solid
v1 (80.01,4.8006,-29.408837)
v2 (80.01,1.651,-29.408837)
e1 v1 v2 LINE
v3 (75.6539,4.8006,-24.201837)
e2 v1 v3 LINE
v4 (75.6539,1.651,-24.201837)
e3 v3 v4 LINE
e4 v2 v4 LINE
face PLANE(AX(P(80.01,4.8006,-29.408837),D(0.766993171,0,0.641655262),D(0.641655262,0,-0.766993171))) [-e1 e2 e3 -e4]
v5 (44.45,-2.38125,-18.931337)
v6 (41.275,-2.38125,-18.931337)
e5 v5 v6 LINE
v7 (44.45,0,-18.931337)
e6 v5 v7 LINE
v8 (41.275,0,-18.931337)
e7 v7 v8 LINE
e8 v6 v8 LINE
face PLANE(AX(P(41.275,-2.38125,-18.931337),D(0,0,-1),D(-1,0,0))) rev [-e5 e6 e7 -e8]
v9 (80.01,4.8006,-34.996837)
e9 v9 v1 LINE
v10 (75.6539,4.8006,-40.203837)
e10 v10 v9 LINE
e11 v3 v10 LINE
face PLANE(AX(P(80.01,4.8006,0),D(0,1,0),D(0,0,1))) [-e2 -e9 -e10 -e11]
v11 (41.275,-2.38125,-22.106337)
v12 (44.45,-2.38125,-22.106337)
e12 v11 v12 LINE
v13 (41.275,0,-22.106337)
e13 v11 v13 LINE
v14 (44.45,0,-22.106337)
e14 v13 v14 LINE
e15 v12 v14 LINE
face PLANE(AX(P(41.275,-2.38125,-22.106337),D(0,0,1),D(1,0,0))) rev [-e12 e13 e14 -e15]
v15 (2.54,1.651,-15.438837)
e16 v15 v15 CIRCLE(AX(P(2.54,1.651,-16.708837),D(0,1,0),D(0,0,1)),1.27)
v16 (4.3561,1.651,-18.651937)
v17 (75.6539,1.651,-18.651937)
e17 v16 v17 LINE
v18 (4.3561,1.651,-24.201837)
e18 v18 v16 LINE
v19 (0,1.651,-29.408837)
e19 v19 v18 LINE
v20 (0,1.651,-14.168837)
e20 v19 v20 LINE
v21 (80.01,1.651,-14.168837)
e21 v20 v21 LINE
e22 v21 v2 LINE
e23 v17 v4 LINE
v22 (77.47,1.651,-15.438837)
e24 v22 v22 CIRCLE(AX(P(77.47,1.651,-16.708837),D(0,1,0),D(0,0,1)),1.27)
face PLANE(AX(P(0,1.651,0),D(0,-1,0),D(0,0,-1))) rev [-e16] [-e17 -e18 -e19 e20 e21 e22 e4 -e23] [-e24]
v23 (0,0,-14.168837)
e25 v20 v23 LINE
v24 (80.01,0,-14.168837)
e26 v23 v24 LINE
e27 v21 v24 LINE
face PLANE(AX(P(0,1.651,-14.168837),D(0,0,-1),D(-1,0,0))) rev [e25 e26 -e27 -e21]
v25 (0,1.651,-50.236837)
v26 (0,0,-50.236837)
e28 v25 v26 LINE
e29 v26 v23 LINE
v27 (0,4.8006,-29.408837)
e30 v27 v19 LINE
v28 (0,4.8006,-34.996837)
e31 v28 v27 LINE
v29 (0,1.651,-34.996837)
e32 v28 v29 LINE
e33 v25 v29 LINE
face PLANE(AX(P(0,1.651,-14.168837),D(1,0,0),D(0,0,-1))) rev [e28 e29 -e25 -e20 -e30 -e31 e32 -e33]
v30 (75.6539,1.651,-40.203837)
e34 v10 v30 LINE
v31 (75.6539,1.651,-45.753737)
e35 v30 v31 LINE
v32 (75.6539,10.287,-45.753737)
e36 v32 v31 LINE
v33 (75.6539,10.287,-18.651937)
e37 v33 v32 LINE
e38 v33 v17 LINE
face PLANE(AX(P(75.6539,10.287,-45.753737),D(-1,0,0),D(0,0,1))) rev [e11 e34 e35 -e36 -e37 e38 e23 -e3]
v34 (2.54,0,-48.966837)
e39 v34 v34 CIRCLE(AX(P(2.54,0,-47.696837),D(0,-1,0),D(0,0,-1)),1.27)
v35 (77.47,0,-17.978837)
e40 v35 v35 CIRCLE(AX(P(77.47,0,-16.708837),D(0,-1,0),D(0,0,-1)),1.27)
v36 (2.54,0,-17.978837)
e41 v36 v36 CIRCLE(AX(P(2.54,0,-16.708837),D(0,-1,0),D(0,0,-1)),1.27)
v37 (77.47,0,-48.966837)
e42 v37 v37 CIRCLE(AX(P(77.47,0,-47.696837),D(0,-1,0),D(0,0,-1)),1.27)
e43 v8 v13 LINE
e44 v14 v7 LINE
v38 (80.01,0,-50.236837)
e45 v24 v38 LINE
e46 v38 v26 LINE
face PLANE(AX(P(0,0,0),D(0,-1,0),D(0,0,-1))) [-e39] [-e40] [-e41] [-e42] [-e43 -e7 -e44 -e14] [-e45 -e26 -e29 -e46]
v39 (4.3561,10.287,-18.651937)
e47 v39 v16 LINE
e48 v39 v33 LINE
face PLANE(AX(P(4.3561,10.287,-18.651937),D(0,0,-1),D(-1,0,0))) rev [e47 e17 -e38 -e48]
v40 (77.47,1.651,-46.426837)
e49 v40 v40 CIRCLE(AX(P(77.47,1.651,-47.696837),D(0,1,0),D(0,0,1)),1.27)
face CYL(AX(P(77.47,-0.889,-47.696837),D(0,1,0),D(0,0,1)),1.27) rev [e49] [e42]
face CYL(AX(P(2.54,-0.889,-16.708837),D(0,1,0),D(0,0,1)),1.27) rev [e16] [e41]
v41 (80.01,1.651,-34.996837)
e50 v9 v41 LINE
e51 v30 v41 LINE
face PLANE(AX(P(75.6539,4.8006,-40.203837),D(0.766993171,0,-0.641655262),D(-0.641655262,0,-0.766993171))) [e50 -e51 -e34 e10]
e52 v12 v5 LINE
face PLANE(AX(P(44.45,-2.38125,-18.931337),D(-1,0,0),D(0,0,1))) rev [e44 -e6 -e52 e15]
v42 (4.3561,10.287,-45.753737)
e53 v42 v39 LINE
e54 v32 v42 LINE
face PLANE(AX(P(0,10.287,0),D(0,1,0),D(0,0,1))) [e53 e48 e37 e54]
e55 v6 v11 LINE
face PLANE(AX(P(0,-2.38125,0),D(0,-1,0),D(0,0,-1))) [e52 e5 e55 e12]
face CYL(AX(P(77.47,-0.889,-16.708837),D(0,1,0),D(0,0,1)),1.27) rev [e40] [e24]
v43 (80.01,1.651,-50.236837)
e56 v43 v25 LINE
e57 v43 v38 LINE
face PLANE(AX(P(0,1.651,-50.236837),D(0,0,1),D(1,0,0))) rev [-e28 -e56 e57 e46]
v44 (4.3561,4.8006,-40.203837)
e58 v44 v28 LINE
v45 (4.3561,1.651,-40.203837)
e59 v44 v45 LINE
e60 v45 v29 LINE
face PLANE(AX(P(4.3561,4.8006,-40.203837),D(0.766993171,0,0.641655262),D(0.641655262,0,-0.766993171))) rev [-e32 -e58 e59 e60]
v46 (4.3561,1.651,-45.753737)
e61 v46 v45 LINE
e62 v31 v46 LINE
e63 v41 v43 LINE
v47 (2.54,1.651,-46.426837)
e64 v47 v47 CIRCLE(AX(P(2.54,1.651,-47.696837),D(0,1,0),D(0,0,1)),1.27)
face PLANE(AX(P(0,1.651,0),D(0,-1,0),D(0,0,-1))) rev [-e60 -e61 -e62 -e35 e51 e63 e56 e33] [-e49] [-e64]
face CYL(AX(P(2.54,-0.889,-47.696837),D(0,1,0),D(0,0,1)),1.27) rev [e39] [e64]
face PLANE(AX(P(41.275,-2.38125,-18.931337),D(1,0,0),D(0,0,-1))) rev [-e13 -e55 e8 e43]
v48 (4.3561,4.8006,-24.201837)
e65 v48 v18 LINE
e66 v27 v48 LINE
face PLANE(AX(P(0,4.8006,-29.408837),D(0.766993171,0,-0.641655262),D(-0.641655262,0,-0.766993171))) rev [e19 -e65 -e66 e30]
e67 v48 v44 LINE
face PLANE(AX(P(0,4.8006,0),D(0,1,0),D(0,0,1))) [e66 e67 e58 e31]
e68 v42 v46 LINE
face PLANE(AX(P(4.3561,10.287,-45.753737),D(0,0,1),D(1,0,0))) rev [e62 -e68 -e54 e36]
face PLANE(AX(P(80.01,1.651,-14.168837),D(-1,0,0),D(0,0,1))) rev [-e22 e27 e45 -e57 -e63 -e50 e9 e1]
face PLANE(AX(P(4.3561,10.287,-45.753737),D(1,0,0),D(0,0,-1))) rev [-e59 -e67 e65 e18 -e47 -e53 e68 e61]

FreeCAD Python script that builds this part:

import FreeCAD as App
import Part
import Sketcher
from FreeCAD import Vector
Q = App.Units.Quantity


def add_polygon(sketch, points):
    """Adds a closed chain of lines whose ends are joined by coincident constraints."""
    first, n = sketch.GeometryCount, len(points)
    for a, b in zip(points, points[1:] + points[:1]):
        sketch.addGeometry(Part.LineSegment(App.Vector(*a, 0), App.Vector(*b, 0)), False)
    for i in range(n):
        sketch.addConstraint(Sketcher.Constraint("Coincident", first + i, 2, first + (i + 1) % n, 1))

doc = App.newDocument("Part")
body = doc.addObject("PartDesign::Body", "Body")

sketch1 = body.newObject("Sketcher::SketchObject", "Sketch")
sketch1.AttachmentSupport = (doc.getObject("XZ_Plane"), [""])
sketch1.MapMode = "FlatFace"
add_polygon(sketch1, [(0, -50), (0, -14), (80, -14), (80, -50)])
sketch1.addConstraint(Sketcher.Constraint("Vertical", 0))
sketch1.addConstraint(Sketcher.Constraint("Horizontal", 1))
sketch1.addConstraint(Sketcher.Constraint("Vertical", 2))
sketch1.addConstraint(Sketcher.Constraint("Horizontal", 3))
sketch1.addConstraint(Sketcher.Constraint("PointOnObject", 0, 2, -2))
sketch1.addConstraint(Sketcher.Constraint("DistanceX", 1, 1, 1, 2, Q("3.15 in")))
sketch1.addConstraint(Sketcher.Constraint("DistanceY", 0, 1, 0, 2, Q("1.42 in")))
sketch1.addConstraint(Sketcher.Constraint("DistanceY", 0, 2, -1, 1, 14.168837))
pad1 = body.newObject("PartDesign::Pad", "Pad")
pad1.Profile = sketch1
pad1.Length = Q("0.065 in")
pad1.Reversed = True

sketch2 = body.newObject("Sketcher::SketchObject", "Sketch001")
sketch2.AttachmentSupport = (doc.getObject("XZ_Plane"), [""])
sketch2.MapMode = "FlatFace"
sketch2.AttachmentOffset = App.Placement(Vector(0, 0, -0.065 * 25.4), App.Rotation())
sketch2.addGeometry(Part.Circle(Vector(2.5, -47.7, 0), Vector(0, 0, 1), 1.3), False)
sketch2.addGeometry(Part.Circle(Vector(2.5, -16.7, 0), Vector(0, 0, 1), 1.3), False)
sketch2.addGeometry(Part.Circle(Vector(77.5, -47.7, 0), Vector(0, 0, 1), 1.3), False)
sketch2.addGeometry(Part.Circle(Vector(77.5, -16.7, 0), Vector(0, 0, 1), 1.3), False)
sketch2.addConstraint(Sketcher.Constraint("Equal", 0, 1))
sketch2.addConstraint(Sketcher.Constraint("Equal", 1, 2))
sketch2.addConstraint(Sketcher.Constraint("Equal", 2, 3))
sketch2.addConstraint(Sketcher.Constraint("Horizontal", 0, 3, 2, 3))
sketch2.addConstraint(Sketcher.Constraint("Horizontal", 1, 3, 3, 3))
sketch2.addConstraint(Sketcher.Constraint("Vertical", 0, 3, 1, 3))
sketch2.addConstraint(Sketcher.Constraint("Vertical", 2, 3, 3, 3))
sketch2.addConstraint(Sketcher.Constraint("Diameter", 0, Q("0.1 in")))
sketch2.addConstraint(Sketcher.Constraint("DistanceX", -1, 1, 0, 3, Q("0.1 in")))
sketch2.addConstraint(Sketcher.Constraint("DistanceX", -1, 1, 2, 3, Q("3.05 in")))
sketch2.addConstraint(Sketcher.Constraint("DistanceY", 0, 3, 1, 3, Q("1.22 in")))
sketch2.addConstraint(Sketcher.Constraint("DistanceY", 0, 3, -1, 1, 47.696837))
pocket1 = body.newObject("PartDesign::Pocket", "Pocket")
pocket1.Profile = sketch2
pocket1.Length = Q("0.1 in")
pocket1.Reversed = True

sketch3 = body.newObject("Sketcher::SketchObject", "Sketch002")
sketch3.AttachmentSupport = (doc.getObject("XZ_Plane"), [""])
sketch3.MapMode = "FlatFace"
sketch3.AttachmentOffset = App.Placement(Vector(0, 0, -0.065 * 25.4), App.Rotation())
add_polygon(sketch3, [(4, -46), (4, -19), (76, -19), (76, -46)])
sketch3.addConstraint(Sketcher.Constraint("Vertical", 0))
sketch3.addConstraint(Sketcher.Constraint("Horizontal", 1))
sketch3.addConstraint(Sketcher.Constraint("Vertical", 2))
sketch3.addConstraint(Sketcher.Constraint("Horizontal", 3))
sketch3.addConstraint(Sketcher.Constraint("DistanceX", 1, 1, 1, 2, Q("2.807 in")))
sketch3.addConstraint(Sketcher.Constraint("DistanceY", 0, 1, 0, 2, Q("1.067 in")))
sketch3.addConstraint(Sketcher.Constraint("DistanceX", -1, 1, 0, 2, Q("0.1715 in")))
sketch3.addConstraint(Sketcher.Constraint("DistanceY", 0, 2, -1, 1, 18.651937))
pad2 = body.newObject("PartDesign::Pad", "Pad001")
pad2.Profile = sketch3
pad2.Length = Q("0.34 in")
pad2.Reversed = True

sketch4 = body.newObject("Sketcher::SketchObject", "Sketch003")
sketch4.AttachmentSupport = (doc.getObject("XZ_Plane"), [""])
sketch4.MapMode = "FlatFace"
sketch4.AttachmentOffset = App.Placement(Vector(0, 0, -0.065 * 25.4), App.Rotation())
add_polygon(sketch4, [(4, -40), (0, -35), (0, -29), (4, -24)])
sketch4.addConstraint(Sketcher.Constraint("Vertical", 1))
sketch4.addConstraint(Sketcher.Constraint("Vertical", 3))
sketch4.addConstraint(Sketcher.Constraint("PointOnObject", 0, 2, -2))
sketch4.addConstraint(Sketcher.Constraint("Equal", 0, 2))
sketch4.addConstraint(Sketcher.Constraint("DistanceY", 1, 1, 1, 2, Q("0.22 in")))
sketch4.addConstraint(Sketcher.Constraint("DistanceY", 3, 2, 3, 1, Q("0.63 in")))
sketch4.addConstraint(Sketcher.Constraint("DistanceX", -1, 1, 2, 2, Q("0.1715 in")))
sketch4.addConstraint(Sketcher.Constraint("DistanceY", 0, 2, -1, 1, 34.996837))
pad3 = body.newObject("PartDesign::Pad", "Pad002")
pad3.Profile = sketch4
pad3.Length = Q("0.124 in")
pad3.Reversed = True
doc.recompute()

datumplane = body.newObject("PartDesign::Plane", "DatumPlane")
datumplane.AttachmentSupport = (doc.getObject("YZ_Plane"), [""])
datumplane.MapMode = "FlatFace"
datumplane.AttachmentOffset = App.Placement(Vector(0, 0, 1.575 * 25.4), App.Rotation())
mirrored = body.newObject("PartDesign::Mirrored", "Mirrored")
mirrored.Originals = [pad3]
mirrored.MirrorPlane = (datumplane, [""])
body.Tip = mirrored

sketch5 = body.newObject("Sketcher::SketchObject", "Sketch004")
sketch5.AttachmentSupport = (doc.getObject("XZ_Plane"), [""])
sketch5.MapMode = "FlatFace"
add_polygon(sketch5, [(41.3, -18.9), (41.3, -22.1), (44.5, -22.1), (44.5, -18.9)])
sketch5.addConstraint(Sketcher.Constraint("Vertical", 0))
sketch5.addConstraint(Sketcher.Constraint("Horizontal", 1))
sketch5.addConstraint(Sketcher.Constraint("Vertical", 2))
sketch5.addConstraint(Sketcher.Constraint("Horizontal", 3))
sketch5.addConstraint(Sketcher.Constraint("Equal", 3, 0))
sketch5.addConstraint(Sketcher.Constraint("DistanceX", 1, 1, 1, 2, Q("0.125 in")))
sketch5.addConstraint(Sketcher.Constraint("DistanceX", -1, 1, 1, 2, Q("1.75 in")))
sketch5.addConstraint(Sketcher.Constraint("DistanceY", 0, 2, -1, 1, 22.106337))
pad4 = body.newObject("PartDesign::Pad", "Pad003")
pad4.Profile = sketch5
pad4.Length = Q("0.09375 in")

doc.recompute()
